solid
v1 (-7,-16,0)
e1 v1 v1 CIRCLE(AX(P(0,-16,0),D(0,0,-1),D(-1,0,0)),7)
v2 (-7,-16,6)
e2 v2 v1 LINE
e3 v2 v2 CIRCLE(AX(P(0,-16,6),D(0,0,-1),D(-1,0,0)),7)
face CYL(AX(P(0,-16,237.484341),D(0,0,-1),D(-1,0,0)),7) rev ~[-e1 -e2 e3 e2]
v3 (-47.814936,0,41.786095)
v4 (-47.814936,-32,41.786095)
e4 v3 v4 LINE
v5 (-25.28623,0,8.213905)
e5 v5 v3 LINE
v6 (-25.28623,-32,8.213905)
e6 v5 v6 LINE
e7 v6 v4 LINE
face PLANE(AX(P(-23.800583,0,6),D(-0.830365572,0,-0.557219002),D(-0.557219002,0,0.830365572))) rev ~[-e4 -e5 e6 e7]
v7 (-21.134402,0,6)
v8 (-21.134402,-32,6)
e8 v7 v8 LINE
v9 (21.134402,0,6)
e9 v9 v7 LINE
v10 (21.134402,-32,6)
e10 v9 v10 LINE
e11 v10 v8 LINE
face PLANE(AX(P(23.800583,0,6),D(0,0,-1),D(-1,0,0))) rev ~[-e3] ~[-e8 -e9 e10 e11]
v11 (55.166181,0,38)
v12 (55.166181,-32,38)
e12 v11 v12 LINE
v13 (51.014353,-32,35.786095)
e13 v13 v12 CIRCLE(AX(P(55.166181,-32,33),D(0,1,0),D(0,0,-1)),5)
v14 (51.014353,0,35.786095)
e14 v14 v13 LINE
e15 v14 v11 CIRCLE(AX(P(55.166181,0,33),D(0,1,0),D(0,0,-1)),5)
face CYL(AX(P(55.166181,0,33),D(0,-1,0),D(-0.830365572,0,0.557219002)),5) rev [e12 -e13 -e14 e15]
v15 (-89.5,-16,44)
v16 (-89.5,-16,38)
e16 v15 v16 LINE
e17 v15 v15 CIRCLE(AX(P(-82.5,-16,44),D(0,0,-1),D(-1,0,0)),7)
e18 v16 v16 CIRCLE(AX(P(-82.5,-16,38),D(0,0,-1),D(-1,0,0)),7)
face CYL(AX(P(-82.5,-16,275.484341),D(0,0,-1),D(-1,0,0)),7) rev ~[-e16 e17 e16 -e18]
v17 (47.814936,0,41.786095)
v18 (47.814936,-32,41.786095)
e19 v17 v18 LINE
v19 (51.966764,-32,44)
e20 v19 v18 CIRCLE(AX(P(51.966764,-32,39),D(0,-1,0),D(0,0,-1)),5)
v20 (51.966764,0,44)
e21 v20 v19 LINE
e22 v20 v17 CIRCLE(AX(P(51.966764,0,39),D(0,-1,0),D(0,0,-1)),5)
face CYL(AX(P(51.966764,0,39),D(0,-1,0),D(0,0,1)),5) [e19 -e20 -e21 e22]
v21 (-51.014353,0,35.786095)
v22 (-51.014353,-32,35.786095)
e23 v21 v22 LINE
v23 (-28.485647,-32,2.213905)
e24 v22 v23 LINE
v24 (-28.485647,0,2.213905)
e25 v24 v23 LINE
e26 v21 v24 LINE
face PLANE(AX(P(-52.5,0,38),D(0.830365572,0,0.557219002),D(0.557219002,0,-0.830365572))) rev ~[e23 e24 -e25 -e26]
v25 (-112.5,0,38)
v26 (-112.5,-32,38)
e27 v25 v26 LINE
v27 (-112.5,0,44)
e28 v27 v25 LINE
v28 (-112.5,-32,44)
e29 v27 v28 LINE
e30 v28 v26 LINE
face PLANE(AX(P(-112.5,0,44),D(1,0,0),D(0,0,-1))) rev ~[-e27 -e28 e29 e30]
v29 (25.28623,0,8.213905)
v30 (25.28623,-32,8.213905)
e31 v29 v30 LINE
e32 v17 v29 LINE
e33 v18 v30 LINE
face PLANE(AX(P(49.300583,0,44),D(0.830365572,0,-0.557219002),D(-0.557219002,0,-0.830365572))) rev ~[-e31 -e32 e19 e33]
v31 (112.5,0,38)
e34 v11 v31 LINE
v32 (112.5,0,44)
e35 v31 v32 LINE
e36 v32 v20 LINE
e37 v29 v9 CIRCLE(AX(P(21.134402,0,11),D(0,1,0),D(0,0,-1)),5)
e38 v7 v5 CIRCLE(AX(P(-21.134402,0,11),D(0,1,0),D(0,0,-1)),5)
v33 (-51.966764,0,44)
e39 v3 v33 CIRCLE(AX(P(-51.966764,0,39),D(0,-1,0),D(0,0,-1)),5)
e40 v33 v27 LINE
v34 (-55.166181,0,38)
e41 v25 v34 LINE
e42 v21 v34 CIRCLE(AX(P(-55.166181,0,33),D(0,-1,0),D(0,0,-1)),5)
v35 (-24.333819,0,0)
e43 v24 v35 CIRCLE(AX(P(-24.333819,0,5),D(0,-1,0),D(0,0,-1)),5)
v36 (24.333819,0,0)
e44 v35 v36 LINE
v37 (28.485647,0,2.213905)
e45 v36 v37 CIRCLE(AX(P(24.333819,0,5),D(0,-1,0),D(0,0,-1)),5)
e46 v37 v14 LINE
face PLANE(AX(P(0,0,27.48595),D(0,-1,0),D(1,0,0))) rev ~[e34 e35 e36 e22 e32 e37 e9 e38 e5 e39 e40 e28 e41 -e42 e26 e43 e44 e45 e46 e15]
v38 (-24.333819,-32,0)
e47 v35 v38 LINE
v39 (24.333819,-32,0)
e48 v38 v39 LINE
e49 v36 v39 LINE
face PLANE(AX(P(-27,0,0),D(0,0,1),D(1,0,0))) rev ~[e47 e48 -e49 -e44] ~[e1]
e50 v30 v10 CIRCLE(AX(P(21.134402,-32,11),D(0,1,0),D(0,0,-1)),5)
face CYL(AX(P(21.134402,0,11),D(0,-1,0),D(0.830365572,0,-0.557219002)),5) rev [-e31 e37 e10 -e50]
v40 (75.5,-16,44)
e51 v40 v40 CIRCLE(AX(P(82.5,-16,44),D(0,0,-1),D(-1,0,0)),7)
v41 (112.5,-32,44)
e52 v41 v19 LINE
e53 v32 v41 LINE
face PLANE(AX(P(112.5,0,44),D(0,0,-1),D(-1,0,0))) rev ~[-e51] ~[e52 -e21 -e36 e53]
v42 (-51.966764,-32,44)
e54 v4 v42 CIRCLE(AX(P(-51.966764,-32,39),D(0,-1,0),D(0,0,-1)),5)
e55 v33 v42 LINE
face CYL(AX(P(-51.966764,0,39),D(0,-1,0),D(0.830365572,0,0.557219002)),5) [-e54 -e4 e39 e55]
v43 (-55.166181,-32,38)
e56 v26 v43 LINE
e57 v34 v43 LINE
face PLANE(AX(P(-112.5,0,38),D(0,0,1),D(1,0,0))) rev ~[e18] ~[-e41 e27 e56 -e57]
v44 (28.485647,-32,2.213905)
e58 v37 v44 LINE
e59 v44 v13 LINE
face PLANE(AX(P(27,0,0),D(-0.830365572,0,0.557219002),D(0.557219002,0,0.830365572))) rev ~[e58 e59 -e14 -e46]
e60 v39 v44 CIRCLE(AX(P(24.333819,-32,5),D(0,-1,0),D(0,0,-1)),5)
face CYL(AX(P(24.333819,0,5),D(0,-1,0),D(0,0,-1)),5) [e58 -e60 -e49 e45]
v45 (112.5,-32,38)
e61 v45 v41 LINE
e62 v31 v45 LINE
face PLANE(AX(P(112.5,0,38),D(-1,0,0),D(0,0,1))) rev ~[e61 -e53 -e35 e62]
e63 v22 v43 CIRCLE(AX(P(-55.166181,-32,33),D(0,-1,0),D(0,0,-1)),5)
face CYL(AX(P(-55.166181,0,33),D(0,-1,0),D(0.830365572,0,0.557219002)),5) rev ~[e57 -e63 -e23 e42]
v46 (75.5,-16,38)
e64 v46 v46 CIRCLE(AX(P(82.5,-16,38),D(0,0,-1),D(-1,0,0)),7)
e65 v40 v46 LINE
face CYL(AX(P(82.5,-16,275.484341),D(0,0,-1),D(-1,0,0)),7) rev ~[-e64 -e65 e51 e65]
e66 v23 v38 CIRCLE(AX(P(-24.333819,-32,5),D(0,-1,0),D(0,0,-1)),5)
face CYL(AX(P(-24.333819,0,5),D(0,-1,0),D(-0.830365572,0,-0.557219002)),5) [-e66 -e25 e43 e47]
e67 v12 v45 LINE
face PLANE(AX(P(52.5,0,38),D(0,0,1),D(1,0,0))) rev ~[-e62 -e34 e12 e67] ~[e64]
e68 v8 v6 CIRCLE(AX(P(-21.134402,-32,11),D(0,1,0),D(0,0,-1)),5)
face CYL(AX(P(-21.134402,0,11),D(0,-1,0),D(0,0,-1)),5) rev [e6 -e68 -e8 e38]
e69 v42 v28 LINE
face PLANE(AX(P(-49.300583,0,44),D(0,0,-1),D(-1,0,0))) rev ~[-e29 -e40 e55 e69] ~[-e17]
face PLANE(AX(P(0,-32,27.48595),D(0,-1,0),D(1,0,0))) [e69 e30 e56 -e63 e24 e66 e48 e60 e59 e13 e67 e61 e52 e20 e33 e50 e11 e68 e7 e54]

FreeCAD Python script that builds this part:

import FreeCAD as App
import Part
import Sketcher


def edges_at(feature, points):
    """Names of the edges that pass closest to the given points."""
    edges = feature.Shape.Edges
    near = lambda p: min(range(len(edges)), key=lambda i: edges[i].distToShape(Part.Vertex(*p))[0])
    return sorted({f"Edge{near(p) + 1}" for p in points})

doc = App.newDocument("Part")
params = doc.addObject("Spreadsheet::Sheet", "Params")
for row, (alias, value) in enumerate([
    ("sketch1_width", "54 mm"),
    ("sketch1_width2", "60 mm"),
    ("sketch1_height", "6 mm"),
    ("pad1_length", "32 mm"),
    ("fillet_radius", "5 mm"),
    ("sketch2_diameter", "14 mm"),
    ("hole_diameter", "14 mm"),
    ("sketch3_diameter", "14 mm"),
    ("hole2_diameter", "14 mm"),
], start=1):
    params.set(f"A{row}", alias)
    params.set(f"B{row}", "=" + value)
    params.setAlias(f"B{row}", alias)

body = doc.addObject("PartDesign::Body", "Body")

# Sketch on XZ plane
sketch1 = doc.addObject("Sketcher::SketchObject", "Sketch")
body.addObject(sketch1)
sketch1.AttachmentSupport = (doc.XZ_Plane, [""])
sketch1.MapMode = "FlatFace"
sketch1.addGeometry([
    Part.LineSegment(App.Vector(-52, 38, 0), App.Vector(-27, 0, 0)),  # 0
    Part.LineSegment(App.Vector(-27, 0, 0), App.Vector(27, 0, 0)),  # 1
    Part.LineSegment(App.Vector(27, 0, 0), App.Vector(52, 38, 0)),  # 2
    Part.LineSegment(App.Vector(52, 38, 0), App.Vector(112, 38, 0)),  # 3
    Part.LineSegment(App.Vector(112, 38, 0), App.Vector(112, 44, 0)),  # 4
    Part.LineSegment(App.Vector(112, 44, 0), App.Vector(49, 44, 0)),  # 5
    Part.LineSegment(App.Vector(49, 44, 0), App.Vector(24, 6, 0)),  # 6
    Part.LineSegment(App.Vector(24, 6, 0), App.Vector(-24, 6, 0)),  # 7
    Part.LineSegment(App.Vector(-24, 6, 0), App.Vector(-49, 44, 0)),  # 8
    Part.LineSegment(App.Vector(-49, 44, 0), App.Vector(-112, 44, 0)),  # 9
    Part.LineSegment(App.Vector(-112, 44, 0), App.Vector(-112, 38, 0)),  # 10
    Part.LineSegment(App.Vector(-112, 38, 0), App.Vector(-52, 38, 0)),  # 11
], False)
sketch1.addConstraint([
    Sketcher.Constraint("Coincident", 0, 2, 1, 1),
    Sketcher.Constraint("Coincident", 1, 2, 2, 1),
    Sketcher.Constraint("Coincident", 2, 2, 3, 1),
    Sketcher.Constraint("Coincident", 3, 2, 4, 1),
    Sketcher.Constraint("Coincident", 4, 2, 5, 1),
    Sketcher.Constraint("Coincident", 5, 2, 6, 1),
    Sketcher.Constraint("Coincident", 6, 2, 7, 1),
    Sketcher.Constraint("Coincident", 7, 2, 8, 1),
    Sketcher.Constraint("Coincident", 8, 2, 9, 1),
    Sketcher.Constraint("Coincident", 9, 2, 10, 1),
    Sketcher.Constraint("Coincident", 10, 2, 11, 1),
    Sketcher.Constraint("Coincident", 11, 2, 0, 1),
    Sketcher.Constraint("Horizontal", 1),
    Sketcher.Constraint("Horizontal", 3),
    Sketcher.Constraint("Vertical", 4),
    Sketcher.Constraint("Horizontal", 5),
    Sketcher.Constraint("Horizontal", 7),
    Sketcher.Constraint("Horizontal", 9),
    Sketcher.Constraint("Vertical", 10),
    Sketcher.Constraint("Horizontal", 11),
    Sketcher.Constraint("Symmetric", 0, 2, 1, 2, -1, 1),
    Sketcher.Constraint("Symmetric", 5, 2, 8, 2, -2),
    Sketcher.Constraint("Symmetric", 3, 2, 10, 2, -2),
    Sketcher.Constraint("Parallel", 2, 6),
    Sketcher.Constraint("Parallel", 0, 8),
    Sketcher.Constraint("Equal", 3, 11),
    Sketcher.Constraint("Equal", 2, 6),
    Sketcher.Constraint("DistanceX", 1, 1, 1, 2, 54.0),
    Sketcher.Constraint("DistanceX", 3, 1, 3, 2, 60.0),
    Sketcher.Constraint("DistanceY", 4, 1, 4, 2, 6.0),
    Sketcher.Constraint("DistanceY", -1, 1, 2, 2, 38.0),
    Sketcher.Constraint("DistanceX", -1, 1, 2, 2, 52.5),
    Sketcher.Constraint("DistanceX", 5, 2, 5, 1, 63.199417),
])
sketch1.setExpression("Constraints[27]", "Params.sketch1_width")
sketch1.setExpression("Constraints[28]", "Params.sketch1_width2")
sketch1.setExpression("Constraints[29]", "Params.sketch1_height")
pad1 = doc.addObject("PartDesign::Pad", "Pad")
body.addObject(pad1)
pad1.Profile = sketch1
pad1.setExpression("Length", "Params.pad1_length")
doc.recompute()

fillet = doc.addObject("PartDesign::Fillet", "Fillet")
body.addObject(fillet)
fillet.Base = (pad1, edges_at(pad1, [
    (-49.301, -16, 44),
    (-23.801, -16, 6),
    (23.801, -16, 6),
    (49.301, -16, 44),
    (52.5, -16, 38),
    (27, -16, 0),
    (-27, -16, 0),
    (-52.5, -16, 38),
]))
fillet.setExpression("Radius", "Params.fillet_radius")

# Sketch on XY plane
sketch2 = doc.addObject("Sketcher::SketchObject", "Sketch001")
body.addObject(sketch2)
sketch2.AttachmentSupport = (doc.XY_Plane, [""])
sketch2.MapMode = "FlatFace"
sketch2.AttachmentOffset = App.Placement(App.Vector(0, 0, 6), App.Rotation())
sketch2.addGeometry(Part.Circle(App.Vector(0, -16, 0), App.Vector(0, 0, 1), 7), False)
sketch2.addConstraint([
    Sketcher.Constraint("PointOnObject", 0, 3, -2),
    Sketcher.Constraint("Diameter", 0, 14.0),
    Sketcher.Constraint("DistanceY", 0, 3, -1, 1, 16.0),
])
sketch2.setExpression("Constraints[1]", "Params.sketch2_diameter")
doc.recompute()
hole = doc.addObject("PartDesign::Hole", "Hole")
body.addObject(hole)
hole.Profile = sketch2
hole.ThreadType = "None"
hole.setExpression("Diameter", "Params.hole_diameter")
hole.DepthType = "ThroughAll"

# Sketch on XY plane
sketch3 = doc.addObject("Sketcher::SketchObject", "Sketch002")
body.addObject(sketch3)
sketch3.AttachmentSupport = (doc.XY_Plane, [""])
sketch3.MapMode = "FlatFace"
sketch3.AttachmentOffset = App.Placement(App.Vector(0, 0, 44), App.Rotation())
sketch3.addGeometry([
    Part.Circle(App.Vector(-82, -16, 0), App.Vector(0, 0, 1), 7),
    Part.Circle(App.Vector(82, -16, 0), App.Vector(0, 0, 1), 7),
], False)
sketch3.addConstraint([
    Sketcher.Constraint("Equal", 0, 1),
    Sketcher.Constraint("Symmetric", 0, 3, 1, 3, -2),
    Sketcher.Constraint("Diameter", 0, 14.0),
    Sketcher.Constraint("DistanceY", 0, 3, -1, 1, 16.0),
    Sketcher.Constraint("DistanceX", 0, 3, 1, 3, 165.0),
])
sketch3.setExpression("Constraints[2]", "Params.sketch3_diameter")
doc.recompute()
hole2 = doc.addObject("PartDesign::Hole", "Hole001")
body.addObject(hole2)
hole2.Profile = sketch3
hole2.ThreadType = "None"
hole2.setExpression("Diameter", "Params.hole2_diameter")
hole2.DepthType = "ThroughAll"

doc.recompute()
